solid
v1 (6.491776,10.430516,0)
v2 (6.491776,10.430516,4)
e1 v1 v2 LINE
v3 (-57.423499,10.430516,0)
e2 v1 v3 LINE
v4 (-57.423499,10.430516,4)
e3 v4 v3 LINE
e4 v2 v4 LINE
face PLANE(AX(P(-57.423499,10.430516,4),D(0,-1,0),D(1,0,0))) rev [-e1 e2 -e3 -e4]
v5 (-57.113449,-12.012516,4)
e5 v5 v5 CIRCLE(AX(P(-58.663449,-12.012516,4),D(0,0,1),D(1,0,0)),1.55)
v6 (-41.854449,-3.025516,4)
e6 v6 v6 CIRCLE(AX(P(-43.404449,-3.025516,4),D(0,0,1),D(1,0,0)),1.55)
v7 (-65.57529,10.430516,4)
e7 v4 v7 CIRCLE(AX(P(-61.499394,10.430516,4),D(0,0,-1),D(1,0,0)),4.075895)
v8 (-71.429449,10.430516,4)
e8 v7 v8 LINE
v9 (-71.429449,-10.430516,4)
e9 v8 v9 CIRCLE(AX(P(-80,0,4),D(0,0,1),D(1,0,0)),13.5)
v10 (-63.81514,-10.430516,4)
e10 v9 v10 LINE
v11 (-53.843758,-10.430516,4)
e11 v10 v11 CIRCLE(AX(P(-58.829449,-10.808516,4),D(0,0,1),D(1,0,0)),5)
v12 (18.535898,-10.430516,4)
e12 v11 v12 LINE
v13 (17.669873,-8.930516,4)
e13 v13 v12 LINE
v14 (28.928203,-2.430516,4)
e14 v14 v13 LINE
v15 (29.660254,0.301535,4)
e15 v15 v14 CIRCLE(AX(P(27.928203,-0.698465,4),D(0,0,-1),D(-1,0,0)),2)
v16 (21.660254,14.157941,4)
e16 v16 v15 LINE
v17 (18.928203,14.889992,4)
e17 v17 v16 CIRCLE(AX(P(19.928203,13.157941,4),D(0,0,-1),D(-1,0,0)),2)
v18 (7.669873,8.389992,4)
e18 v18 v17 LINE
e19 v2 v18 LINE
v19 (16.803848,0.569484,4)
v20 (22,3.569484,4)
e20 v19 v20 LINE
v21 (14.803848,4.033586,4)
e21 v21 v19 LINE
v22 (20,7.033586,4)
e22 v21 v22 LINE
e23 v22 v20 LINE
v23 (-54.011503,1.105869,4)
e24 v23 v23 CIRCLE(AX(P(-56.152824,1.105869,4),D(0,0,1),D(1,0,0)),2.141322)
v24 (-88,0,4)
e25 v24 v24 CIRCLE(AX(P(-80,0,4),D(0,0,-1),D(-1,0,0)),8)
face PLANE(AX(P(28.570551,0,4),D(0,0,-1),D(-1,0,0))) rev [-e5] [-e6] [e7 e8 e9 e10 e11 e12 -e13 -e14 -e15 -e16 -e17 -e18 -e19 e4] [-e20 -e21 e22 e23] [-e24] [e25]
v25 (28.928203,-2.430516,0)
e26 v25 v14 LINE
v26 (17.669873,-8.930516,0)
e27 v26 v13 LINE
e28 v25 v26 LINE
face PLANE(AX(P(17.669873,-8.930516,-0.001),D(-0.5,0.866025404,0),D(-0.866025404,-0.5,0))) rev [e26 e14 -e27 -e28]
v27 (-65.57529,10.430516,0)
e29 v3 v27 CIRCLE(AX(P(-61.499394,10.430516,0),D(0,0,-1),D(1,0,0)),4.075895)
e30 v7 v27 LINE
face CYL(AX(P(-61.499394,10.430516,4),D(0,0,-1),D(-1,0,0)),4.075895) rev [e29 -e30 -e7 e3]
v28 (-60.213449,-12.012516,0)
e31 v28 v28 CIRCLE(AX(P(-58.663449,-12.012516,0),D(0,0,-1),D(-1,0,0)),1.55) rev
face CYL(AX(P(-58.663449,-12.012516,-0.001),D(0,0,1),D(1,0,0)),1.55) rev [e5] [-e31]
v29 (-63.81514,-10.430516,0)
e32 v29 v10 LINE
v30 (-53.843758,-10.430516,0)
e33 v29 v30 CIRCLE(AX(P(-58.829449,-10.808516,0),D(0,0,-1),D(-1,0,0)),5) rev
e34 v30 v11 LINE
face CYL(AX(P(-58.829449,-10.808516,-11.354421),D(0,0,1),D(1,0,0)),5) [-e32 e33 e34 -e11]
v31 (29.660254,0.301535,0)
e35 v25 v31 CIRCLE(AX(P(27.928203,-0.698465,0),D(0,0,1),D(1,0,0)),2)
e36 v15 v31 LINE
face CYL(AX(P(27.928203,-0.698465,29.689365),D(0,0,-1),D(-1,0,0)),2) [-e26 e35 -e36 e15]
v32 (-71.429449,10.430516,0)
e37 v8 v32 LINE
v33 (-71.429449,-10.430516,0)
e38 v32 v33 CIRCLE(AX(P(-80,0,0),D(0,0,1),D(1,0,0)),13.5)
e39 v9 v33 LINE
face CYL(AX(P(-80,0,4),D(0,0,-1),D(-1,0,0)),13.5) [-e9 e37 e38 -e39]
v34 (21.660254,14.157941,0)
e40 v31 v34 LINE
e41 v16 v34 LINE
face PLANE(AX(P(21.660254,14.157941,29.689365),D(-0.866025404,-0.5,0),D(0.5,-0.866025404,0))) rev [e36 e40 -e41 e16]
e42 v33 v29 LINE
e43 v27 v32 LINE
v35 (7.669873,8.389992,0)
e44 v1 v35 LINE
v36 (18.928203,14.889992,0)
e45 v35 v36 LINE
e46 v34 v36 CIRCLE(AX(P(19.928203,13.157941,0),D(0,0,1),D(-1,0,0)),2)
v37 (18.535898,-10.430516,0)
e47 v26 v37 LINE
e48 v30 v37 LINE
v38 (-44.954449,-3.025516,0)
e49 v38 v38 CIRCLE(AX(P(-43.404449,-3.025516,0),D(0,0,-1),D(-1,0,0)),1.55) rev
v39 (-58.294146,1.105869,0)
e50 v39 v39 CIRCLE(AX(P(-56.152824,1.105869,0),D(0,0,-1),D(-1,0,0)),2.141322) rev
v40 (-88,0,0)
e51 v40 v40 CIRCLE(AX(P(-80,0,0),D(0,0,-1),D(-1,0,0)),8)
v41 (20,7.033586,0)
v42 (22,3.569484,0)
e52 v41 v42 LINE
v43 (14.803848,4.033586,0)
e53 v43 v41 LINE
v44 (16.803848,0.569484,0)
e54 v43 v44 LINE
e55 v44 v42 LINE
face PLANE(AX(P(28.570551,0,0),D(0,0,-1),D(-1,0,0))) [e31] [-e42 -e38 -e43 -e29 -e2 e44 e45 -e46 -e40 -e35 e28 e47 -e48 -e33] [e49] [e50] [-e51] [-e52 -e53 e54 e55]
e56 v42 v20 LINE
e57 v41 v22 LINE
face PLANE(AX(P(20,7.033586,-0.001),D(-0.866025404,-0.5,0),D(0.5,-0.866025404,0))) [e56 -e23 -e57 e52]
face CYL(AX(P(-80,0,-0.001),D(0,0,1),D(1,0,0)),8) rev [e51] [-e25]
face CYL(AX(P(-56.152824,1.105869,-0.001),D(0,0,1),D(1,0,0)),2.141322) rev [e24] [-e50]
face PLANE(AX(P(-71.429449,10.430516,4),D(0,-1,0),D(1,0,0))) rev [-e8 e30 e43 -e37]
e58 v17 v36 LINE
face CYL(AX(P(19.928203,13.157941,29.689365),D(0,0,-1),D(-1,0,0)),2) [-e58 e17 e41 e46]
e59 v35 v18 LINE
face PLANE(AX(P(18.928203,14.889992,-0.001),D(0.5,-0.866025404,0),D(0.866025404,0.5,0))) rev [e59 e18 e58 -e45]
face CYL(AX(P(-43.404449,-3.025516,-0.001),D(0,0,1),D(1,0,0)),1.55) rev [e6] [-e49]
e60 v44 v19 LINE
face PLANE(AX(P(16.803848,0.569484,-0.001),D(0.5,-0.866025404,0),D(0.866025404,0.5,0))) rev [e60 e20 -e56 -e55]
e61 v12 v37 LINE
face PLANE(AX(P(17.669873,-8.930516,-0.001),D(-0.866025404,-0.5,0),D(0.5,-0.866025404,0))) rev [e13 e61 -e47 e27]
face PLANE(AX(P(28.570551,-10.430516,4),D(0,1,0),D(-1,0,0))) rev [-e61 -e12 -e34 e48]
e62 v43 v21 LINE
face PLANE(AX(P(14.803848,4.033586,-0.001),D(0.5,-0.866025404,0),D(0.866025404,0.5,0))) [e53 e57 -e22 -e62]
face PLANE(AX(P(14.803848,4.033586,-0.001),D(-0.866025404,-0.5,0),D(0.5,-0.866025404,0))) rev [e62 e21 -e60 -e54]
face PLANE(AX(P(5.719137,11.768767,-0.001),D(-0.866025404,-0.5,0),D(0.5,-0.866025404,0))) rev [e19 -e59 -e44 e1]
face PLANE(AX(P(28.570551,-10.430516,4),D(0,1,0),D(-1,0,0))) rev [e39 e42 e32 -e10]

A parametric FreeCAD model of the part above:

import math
import FreeCAD as App
import Part
import Sketcher
Q = App.Units.Quantity


def add_polygon(sketch, points):
    """Adds a closed chain of lines whose ends are joined by coincident constraints."""
    first, n = sketch.GeometryCount, len(points)
    for a, b in zip(points, points[1:] + points[:1]):
        sketch.addGeometry(Part.LineSegment(App.Vector(*a, 0), App.Vector(*b, 0)), False)
    for i in range(n):
        sketch.addConstraint(Sketcher.Constraint("Coincident", first + i, 2, first + (i + 1) % n, 1))

doc = App.newDocument("Part")
body = doc.addObject("PartDesign::Body", "Body")

sketch1 = doc.addObject("Sketcher::SketchObject", "Sketch")
body.addObject(sketch1)
sketch1.AttachmentSupport = (doc.XY_Plane, [""])
sketch1.MapMode = "FlatFace"
sketch1.addGeometry([
    Part.LineSegment(App.Vector(-71.4, -10.4, 0), App.Vector(28.6, -10.4, 0)),
    Part.ArcOfCircle(Part.Circle(App.Vector(28.6, 0, 0), App.Vector(0, 0, 1), 10.4), math.radians(-90), math.radians(90)),
    Part.LineSegment(App.Vector(28.6, 10.4, 0), App.Vector(-57.4, 10.4, 0)),
    Part.ArcOfCircle(Part.Circle(App.Vector(-61.5, 10.4, 0), App.Vector(0, 0, 1), 4.1), math.radians(180), math.radians(360)),
    Part.LineSegment(App.Vector(-65.6, 10.4, 0), App.Vector(-71.4, 10.4, 0)),
    Part.ArcOfCircle(Part.Circle(App.Vector(-80, 0, 0), App.Vector(0, 0, 1), 13.5), math.radians(51), math.radians(309)),
], False)
sketch1.addConstraint([
    Sketcher.Constraint("Tangent", 0, 2, 1, 1),
    Sketcher.Constraint("Tangent", 1, 2, 2, 1),
    Sketcher.Constraint("Coincident", 2, 2, 3, 2),
    Sketcher.Constraint("Coincident", 3, 1, 4, 1),
    Sketcher.Constraint("Coincident", 4, 2, 5, 1),
    Sketcher.Constraint("Coincident", 5, 2, 0, 1),
    Sketcher.Constraint("Horizontal", 0),
    Sketcher.Constraint("Horizontal", 2),
    Sketcher.Constraint("Horizontal", 4),
    Sketcher.Constraint("Symmetric", 4, 2, 5, 2, -1),
    Sketcher.Constraint("PointOnObject", 1, 3, -1),
    Sketcher.Constraint("Horizontal", 3, 3, 1, 2),
    Sketcher.Constraint("Radius", 5, 13.5),
    Sketcher.Constraint("DistanceX", 0, 1, 0, 2, 100.0),
    Sketcher.Constraint("DistanceX", 5, 3, -1, 1, 80.0),
    Sketcher.Constraint("Radius", 1, 10.430516),
    Sketcher.Constraint("Radius", 3, 4.075895),
    Sketcher.Constraint("DistanceX", 2, 2, 2, 1, 85.99405),
])
pad1 = doc.addObject("PartDesign::Pad", "Pad")
body.addObject(pad1)
pad1.Profile = sketch1
pad1.Length = 4

sketch2 = doc.addObject("Sketcher::SketchObject", "Sketch001")
body.addObject(sketch2)
sketch2.AttachmentSupport = (doc.XY_Plane, [""])
sketch2.MapMode = "FlatFace"
sketch2.AttachmentOffset = App.Placement(App.Vector(0, 0, 4), App.Rotation())
sketch2.addGeometry(Part.Circle(App.Vector(-80, 0, 0), App.Vector(0, 0, 1), 8), False)
sketch2.addConstraint([
    Sketcher.Constraint("PointOnObject", 0, 3, -1),
    Sketcher.Constraint("Diameter", 0, 16.0),
    Sketcher.Constraint("DistanceX", 0, 3, -1, 1, 80.0),
])
pocket1 = doc.addObject("PartDesign::Pocket", "Pocket")
body.addObject(pocket1)
pocket1.Profile = sketch2
pocket1.Type = "UpToFirst"

sketch3 = doc.addObject("Sketcher::SketchObject", "Sketch002")
body.addObject(sketch3)
sketch3.AttachmentSupport = (doc.XY_Plane, [""])
sketch3.MapMode = "FlatFace"
sketch3.AttachmentOffset = App.Placement(App.Vector(0, 0, 4), App.Rotation())
sketch3.addGeometry(Part.Circle(App.Vector(-56.2, 1.1, 0), App.Vector(0, 0, 1), 2.1), False)
sketch3.addConstraint([
    Sketcher.Constraint("Diameter", 0, 4.282643),
    Sketcher.Constraint("DistanceY", -1, 1, 0, 3, 1.105869),
    Sketcher.Constraint("DistanceX", 0, 3, -1, 1, 56.152824),
])
pocket2 = doc.addObject("PartDesign::Pocket", "Pocket001")
body.addObject(pocket2)
pocket2.Profile = sketch3
pocket2.Type = "UpToFirst"

sketch4 = doc.addObject("Sketcher::SketchObject", "Sketch003")
body.addObject(sketch4)
sketch4.AttachmentSupport = (doc.XY_Plane, [""])
sketch4.MapMode = "FlatFace"
sketch4.AttachmentOffset = App.Placement(App.Vector(0, 0, 4), App.Rotation())
add_polygon(sketch4, [(20, 7), (14.8, 4), (16.8, 0.6), (22, 3.6)])
sketch4.addConstraint([
    Sketcher.Constraint("Perpendicular", 0, 1),
    Sketcher.Constraint("Perpendicular", 1, 2),
    Sketcher.Constraint("Perpendicular", 2, 3),
    Sketcher.Constraint("Angle", 0, Q("-150 deg")),
    Sketcher.Constraint("Distance", 0, 6.0),
    Sketcher.Constraint("Distance", 1, 4.0),
    Sketcher.Constraint("DistanceX", -1, 1, 2, 2, 22.0),
    Sketcher.Constraint("DistanceY", -1, 1, 0, 2, 4.033586),
])
pocket3 = doc.addObject("PartDesign::Pocket", "Pocket002")
body.addObject(pocket3)
pocket3.Profile = sketch4
pocket3.Type = "UpToFirst"

sketch5 = doc.addObject("Sketcher::SketchObject", "Sketch004")
body.addObject(sketch5)
sketch5.AttachmentSupport = (doc.XY_Plane, [""])
sketch5.MapMode = "FlatFace"
add_polygon(sketch5, [(53.6, -4.6), (34.5, 28.4), (5.7, 11.8), (7.7, 8.4), (18.9, 14.9), (28.9, -2.4), (17.7, -8.9), (24.8, -21.3)])
sketch5.addConstraint([
    Sketcher.Constraint("Perpendicular", 0, 1),
    Sketcher.Constraint("Perpendicular", 1, 2),
    Sketcher.Constraint("Perpendicular", 2, 3),
    Sketcher.Constraint("Perpendicular", 3, 4),
    Sketcher.Constraint("Perpendicular", 4, 5),
    Sketcher.Constraint("Perpendicular", 5, 6),
    Sketcher.Constraint("Perpendicular", 6, 7),
    Sketcher.Constraint("Equal", 3, 5),
    Sketcher.Constraint("Angle", 0, Q("120 deg")),
    Sketcher.Constraint("Distance", 3, 13.0),
    Sketcher.Constraint("Distance", 4, 20.0),
    Sketcher.Constraint("DistanceX", 5, 2, 6, 2, 7.116202),
    Sketcher.Constraint("DistanceX", -1, 1, 0, 2, 34.526391),
    Sketcher.Constraint("DistanceY", 6, 2, -1, 1, 21.256139),
    Sketcher.Constraint("DistanceX", -1, 1, 7, 2, 53.593329),
    Sketcher.Constraint("DistanceX", 2, 2, 0, 2, 26.856518),
])
pocket4 = doc.addObject("PartDesign::Pocket", "Pocket003")
body.addObject(pocket4)
pocket4.Profile = sketch5
pocket4.Length = 4
pocket4.Reversed = True

sketch6 = doc.addObject("Sketcher::SketchObject", "Sketch005")
body.addObject(sketch6)
sketch6.AttachmentSupport = (doc.XY_Plane, [""])
sketch6.MapMode = "FlatFace"
sketch6.addGeometry([
    Part.LineSegment(App.Vector(18.9, 14.9, 0), App.Vector(11.2, 10.4, 0)),
    Part.LineSegment(App.Vector(11.2, 10.4, 0), App.Vector(21.5, 10.4, 0)),
    Part.LineSegment(App.Vector(21.5, 10.4, 0), App.Vector(28.9, -2.4, 0)),
    Part.ArcOfCircle(Part.Circle(App.Vector(27.9, -0.7, 0), App.Vector(0, 0, 1), 2), math.radians(-60), math.radians(30)),
    Part.LineSegment(App.Vector(29.7, 0.3, 0), App.Vector(21.7, 14.2, 0)),
    Part.ArcOfCircle(Part.Circle(App.Vector(19.9, 13.2, 0), App.Vector(0, 0, 1), 2), math.radians(30), math.radians(120)),
], False)
sketch6.addConstraint([
    Sketcher.Constraint("Coincident", 0, 2, 1, 1),
    Sketcher.Constraint("Coincident", 1, 2, 2, 1),
    Sketcher.Constraint("Coincident", 2, 2, 3, 1),
    Sketcher.Constraint("Tangent", 3, 2, 4, 1),
    Sketcher.Constraint("Tangent", 4, 2, 5, 1),
    Sketcher.Constraint("Tangent", 5, 2, 0, 1),
    Sketcher.Constraint("Horizontal", 1),
    Sketcher.Constraint("Equal", 3, 5),
    Sketcher.Constraint("Perpendicular", 0, 2),
    Sketcher.Constraint("Parallel", 2, 4),
    Sketcher.Constraint("Radius", 3, 2.0),
    Sketcher.Constraint("Angle", 0, Q("-150 deg")),
    Sketcher.Constraint("Distance", 4, 16.0),
    Sketcher.Constraint("DistanceX", 3, 3, 2, 2, 1.0),
    Sketcher.Constraint("DistanceX", 1, 1, 1, 2, 10.29872),
    Sketcher.Constraint("DistanceY", -1, 1, 5, 3, 13.157941),
    Sketcher.Constraint("DistanceX", -1, 1, 3, 3, 27.928203),
])
pad2 = doc.addObject("PartDesign::Pad", "Pad001")
body.addObject(pad2)
pad2.Profile = sketch6
pad2.Length = 4

sketch7 = doc.addObject("Sketcher::SketchObject", "Sketch006")
body.addObject(sketch7)
sketch7.AttachmentSupport = (doc.XY_Plane, [""])
sketch7.MapMode = "FlatFace"
sketch7.AttachmentOffset = App.Placement(App.Vector(0, 0, 4), App.Rotation())
sketch7.addGeometry([
    Part.LineSegment(App.Vector(-54, -10, 0), App.Vector(-64, -10, 0)),
    Part.ArcOfCircle(Part.Circle(App.Vector(-59, -11, 0), App.Vector(0, 0, 1), 5), math.radians(176), math.radians(364)),
], False)
sketch7.addConstraint([
    Sketcher.Constraint("Coincident", 0, 1, 1, 2),
    Sketcher.Constraint("Coincident", 1, 1, 0, 2),
    Sketcher.Constraint("Horizontal", 0),
    Sketcher.Constraint("Radius", 1, 5.0),
    Sketcher.Constraint("DistanceY", 1, 3, 0, 1, 0.378),
    Sketcher.Constraint("DistanceX", 1, 3, -1, 1, 58.829449),
    Sketcher.Constraint("DistanceY", 1, 3, -1, 1, 10.808516),
])
pad3 = doc.addObject("PartDesign::Pad", "Pad002")
body.addObject(pad3)
pad3.Profile = sketch7
pad3.Length = 4
pad3.Reversed = True

sketch8 = doc.addObject("Sketcher::SketchObject", "Sketch007")
body.addObject(sketch8)
sketch8.AttachmentSupport = (doc.XY_Plane, [""])
sketch8.MapMode = "FlatFace"
sketch8.AttachmentOffset = App.Placement(App.Vector(0, 0, 4), App.Rotation())
sketch8.addGeometry(Part.Circle(App.Vector(-58.7, -12, 0), App.Vector(0, 0, 1), 1.6), False)
sketch8.addConstraint([
    Sketcher.Constraint("Diameter", 0, 3.1),
    Sketcher.Constraint("DistanceX", 0, 3, -1, 1, 58.663449),
    Sketcher.Constraint("DistanceY", 0, 3, -1, 1, 12.012516),
])
pocket5 = doc.addObject("PartDesign::Pocket", "Pocket004")
body.addObject(pocket5)
pocket5.Profile = sketch8
pocket5.Type = "UpToFirst"

sketch9 = doc.addObject("Sketcher::SketchObject", "Sketch008")
body.addObject(sketch9)
sketch9.AttachmentSupport = (doc.XY_Plane, [""])
sketch9.MapMode = "FlatFace"
sketch9.AttachmentOffset = App.Placement(App.Vector(0, 0, 4), App.Rotation())
sketch9.addGeometry(Part.Circle(App.Vector(-43.4, -3, 0), App.Vector(0, 0, 1), 1.6), False)
sketch9.addConstraint([
    Sketcher.Constraint("Diameter", 0, 3.1),
    Sketcher.Constraint("DistanceX", 0, 3, -1, 1, 43.404449),
    Sketcher.Constraint("DistanceY", 0, 3, -1, 1, 3.025516),
])
pocket6 = doc.addObject("PartDesign::Pocket", "Pocket005")
body.addObject(pocket6)
pocket6.Profile = sketch9
pocket6.Type = "UpToFirst"

doc.recompute()
